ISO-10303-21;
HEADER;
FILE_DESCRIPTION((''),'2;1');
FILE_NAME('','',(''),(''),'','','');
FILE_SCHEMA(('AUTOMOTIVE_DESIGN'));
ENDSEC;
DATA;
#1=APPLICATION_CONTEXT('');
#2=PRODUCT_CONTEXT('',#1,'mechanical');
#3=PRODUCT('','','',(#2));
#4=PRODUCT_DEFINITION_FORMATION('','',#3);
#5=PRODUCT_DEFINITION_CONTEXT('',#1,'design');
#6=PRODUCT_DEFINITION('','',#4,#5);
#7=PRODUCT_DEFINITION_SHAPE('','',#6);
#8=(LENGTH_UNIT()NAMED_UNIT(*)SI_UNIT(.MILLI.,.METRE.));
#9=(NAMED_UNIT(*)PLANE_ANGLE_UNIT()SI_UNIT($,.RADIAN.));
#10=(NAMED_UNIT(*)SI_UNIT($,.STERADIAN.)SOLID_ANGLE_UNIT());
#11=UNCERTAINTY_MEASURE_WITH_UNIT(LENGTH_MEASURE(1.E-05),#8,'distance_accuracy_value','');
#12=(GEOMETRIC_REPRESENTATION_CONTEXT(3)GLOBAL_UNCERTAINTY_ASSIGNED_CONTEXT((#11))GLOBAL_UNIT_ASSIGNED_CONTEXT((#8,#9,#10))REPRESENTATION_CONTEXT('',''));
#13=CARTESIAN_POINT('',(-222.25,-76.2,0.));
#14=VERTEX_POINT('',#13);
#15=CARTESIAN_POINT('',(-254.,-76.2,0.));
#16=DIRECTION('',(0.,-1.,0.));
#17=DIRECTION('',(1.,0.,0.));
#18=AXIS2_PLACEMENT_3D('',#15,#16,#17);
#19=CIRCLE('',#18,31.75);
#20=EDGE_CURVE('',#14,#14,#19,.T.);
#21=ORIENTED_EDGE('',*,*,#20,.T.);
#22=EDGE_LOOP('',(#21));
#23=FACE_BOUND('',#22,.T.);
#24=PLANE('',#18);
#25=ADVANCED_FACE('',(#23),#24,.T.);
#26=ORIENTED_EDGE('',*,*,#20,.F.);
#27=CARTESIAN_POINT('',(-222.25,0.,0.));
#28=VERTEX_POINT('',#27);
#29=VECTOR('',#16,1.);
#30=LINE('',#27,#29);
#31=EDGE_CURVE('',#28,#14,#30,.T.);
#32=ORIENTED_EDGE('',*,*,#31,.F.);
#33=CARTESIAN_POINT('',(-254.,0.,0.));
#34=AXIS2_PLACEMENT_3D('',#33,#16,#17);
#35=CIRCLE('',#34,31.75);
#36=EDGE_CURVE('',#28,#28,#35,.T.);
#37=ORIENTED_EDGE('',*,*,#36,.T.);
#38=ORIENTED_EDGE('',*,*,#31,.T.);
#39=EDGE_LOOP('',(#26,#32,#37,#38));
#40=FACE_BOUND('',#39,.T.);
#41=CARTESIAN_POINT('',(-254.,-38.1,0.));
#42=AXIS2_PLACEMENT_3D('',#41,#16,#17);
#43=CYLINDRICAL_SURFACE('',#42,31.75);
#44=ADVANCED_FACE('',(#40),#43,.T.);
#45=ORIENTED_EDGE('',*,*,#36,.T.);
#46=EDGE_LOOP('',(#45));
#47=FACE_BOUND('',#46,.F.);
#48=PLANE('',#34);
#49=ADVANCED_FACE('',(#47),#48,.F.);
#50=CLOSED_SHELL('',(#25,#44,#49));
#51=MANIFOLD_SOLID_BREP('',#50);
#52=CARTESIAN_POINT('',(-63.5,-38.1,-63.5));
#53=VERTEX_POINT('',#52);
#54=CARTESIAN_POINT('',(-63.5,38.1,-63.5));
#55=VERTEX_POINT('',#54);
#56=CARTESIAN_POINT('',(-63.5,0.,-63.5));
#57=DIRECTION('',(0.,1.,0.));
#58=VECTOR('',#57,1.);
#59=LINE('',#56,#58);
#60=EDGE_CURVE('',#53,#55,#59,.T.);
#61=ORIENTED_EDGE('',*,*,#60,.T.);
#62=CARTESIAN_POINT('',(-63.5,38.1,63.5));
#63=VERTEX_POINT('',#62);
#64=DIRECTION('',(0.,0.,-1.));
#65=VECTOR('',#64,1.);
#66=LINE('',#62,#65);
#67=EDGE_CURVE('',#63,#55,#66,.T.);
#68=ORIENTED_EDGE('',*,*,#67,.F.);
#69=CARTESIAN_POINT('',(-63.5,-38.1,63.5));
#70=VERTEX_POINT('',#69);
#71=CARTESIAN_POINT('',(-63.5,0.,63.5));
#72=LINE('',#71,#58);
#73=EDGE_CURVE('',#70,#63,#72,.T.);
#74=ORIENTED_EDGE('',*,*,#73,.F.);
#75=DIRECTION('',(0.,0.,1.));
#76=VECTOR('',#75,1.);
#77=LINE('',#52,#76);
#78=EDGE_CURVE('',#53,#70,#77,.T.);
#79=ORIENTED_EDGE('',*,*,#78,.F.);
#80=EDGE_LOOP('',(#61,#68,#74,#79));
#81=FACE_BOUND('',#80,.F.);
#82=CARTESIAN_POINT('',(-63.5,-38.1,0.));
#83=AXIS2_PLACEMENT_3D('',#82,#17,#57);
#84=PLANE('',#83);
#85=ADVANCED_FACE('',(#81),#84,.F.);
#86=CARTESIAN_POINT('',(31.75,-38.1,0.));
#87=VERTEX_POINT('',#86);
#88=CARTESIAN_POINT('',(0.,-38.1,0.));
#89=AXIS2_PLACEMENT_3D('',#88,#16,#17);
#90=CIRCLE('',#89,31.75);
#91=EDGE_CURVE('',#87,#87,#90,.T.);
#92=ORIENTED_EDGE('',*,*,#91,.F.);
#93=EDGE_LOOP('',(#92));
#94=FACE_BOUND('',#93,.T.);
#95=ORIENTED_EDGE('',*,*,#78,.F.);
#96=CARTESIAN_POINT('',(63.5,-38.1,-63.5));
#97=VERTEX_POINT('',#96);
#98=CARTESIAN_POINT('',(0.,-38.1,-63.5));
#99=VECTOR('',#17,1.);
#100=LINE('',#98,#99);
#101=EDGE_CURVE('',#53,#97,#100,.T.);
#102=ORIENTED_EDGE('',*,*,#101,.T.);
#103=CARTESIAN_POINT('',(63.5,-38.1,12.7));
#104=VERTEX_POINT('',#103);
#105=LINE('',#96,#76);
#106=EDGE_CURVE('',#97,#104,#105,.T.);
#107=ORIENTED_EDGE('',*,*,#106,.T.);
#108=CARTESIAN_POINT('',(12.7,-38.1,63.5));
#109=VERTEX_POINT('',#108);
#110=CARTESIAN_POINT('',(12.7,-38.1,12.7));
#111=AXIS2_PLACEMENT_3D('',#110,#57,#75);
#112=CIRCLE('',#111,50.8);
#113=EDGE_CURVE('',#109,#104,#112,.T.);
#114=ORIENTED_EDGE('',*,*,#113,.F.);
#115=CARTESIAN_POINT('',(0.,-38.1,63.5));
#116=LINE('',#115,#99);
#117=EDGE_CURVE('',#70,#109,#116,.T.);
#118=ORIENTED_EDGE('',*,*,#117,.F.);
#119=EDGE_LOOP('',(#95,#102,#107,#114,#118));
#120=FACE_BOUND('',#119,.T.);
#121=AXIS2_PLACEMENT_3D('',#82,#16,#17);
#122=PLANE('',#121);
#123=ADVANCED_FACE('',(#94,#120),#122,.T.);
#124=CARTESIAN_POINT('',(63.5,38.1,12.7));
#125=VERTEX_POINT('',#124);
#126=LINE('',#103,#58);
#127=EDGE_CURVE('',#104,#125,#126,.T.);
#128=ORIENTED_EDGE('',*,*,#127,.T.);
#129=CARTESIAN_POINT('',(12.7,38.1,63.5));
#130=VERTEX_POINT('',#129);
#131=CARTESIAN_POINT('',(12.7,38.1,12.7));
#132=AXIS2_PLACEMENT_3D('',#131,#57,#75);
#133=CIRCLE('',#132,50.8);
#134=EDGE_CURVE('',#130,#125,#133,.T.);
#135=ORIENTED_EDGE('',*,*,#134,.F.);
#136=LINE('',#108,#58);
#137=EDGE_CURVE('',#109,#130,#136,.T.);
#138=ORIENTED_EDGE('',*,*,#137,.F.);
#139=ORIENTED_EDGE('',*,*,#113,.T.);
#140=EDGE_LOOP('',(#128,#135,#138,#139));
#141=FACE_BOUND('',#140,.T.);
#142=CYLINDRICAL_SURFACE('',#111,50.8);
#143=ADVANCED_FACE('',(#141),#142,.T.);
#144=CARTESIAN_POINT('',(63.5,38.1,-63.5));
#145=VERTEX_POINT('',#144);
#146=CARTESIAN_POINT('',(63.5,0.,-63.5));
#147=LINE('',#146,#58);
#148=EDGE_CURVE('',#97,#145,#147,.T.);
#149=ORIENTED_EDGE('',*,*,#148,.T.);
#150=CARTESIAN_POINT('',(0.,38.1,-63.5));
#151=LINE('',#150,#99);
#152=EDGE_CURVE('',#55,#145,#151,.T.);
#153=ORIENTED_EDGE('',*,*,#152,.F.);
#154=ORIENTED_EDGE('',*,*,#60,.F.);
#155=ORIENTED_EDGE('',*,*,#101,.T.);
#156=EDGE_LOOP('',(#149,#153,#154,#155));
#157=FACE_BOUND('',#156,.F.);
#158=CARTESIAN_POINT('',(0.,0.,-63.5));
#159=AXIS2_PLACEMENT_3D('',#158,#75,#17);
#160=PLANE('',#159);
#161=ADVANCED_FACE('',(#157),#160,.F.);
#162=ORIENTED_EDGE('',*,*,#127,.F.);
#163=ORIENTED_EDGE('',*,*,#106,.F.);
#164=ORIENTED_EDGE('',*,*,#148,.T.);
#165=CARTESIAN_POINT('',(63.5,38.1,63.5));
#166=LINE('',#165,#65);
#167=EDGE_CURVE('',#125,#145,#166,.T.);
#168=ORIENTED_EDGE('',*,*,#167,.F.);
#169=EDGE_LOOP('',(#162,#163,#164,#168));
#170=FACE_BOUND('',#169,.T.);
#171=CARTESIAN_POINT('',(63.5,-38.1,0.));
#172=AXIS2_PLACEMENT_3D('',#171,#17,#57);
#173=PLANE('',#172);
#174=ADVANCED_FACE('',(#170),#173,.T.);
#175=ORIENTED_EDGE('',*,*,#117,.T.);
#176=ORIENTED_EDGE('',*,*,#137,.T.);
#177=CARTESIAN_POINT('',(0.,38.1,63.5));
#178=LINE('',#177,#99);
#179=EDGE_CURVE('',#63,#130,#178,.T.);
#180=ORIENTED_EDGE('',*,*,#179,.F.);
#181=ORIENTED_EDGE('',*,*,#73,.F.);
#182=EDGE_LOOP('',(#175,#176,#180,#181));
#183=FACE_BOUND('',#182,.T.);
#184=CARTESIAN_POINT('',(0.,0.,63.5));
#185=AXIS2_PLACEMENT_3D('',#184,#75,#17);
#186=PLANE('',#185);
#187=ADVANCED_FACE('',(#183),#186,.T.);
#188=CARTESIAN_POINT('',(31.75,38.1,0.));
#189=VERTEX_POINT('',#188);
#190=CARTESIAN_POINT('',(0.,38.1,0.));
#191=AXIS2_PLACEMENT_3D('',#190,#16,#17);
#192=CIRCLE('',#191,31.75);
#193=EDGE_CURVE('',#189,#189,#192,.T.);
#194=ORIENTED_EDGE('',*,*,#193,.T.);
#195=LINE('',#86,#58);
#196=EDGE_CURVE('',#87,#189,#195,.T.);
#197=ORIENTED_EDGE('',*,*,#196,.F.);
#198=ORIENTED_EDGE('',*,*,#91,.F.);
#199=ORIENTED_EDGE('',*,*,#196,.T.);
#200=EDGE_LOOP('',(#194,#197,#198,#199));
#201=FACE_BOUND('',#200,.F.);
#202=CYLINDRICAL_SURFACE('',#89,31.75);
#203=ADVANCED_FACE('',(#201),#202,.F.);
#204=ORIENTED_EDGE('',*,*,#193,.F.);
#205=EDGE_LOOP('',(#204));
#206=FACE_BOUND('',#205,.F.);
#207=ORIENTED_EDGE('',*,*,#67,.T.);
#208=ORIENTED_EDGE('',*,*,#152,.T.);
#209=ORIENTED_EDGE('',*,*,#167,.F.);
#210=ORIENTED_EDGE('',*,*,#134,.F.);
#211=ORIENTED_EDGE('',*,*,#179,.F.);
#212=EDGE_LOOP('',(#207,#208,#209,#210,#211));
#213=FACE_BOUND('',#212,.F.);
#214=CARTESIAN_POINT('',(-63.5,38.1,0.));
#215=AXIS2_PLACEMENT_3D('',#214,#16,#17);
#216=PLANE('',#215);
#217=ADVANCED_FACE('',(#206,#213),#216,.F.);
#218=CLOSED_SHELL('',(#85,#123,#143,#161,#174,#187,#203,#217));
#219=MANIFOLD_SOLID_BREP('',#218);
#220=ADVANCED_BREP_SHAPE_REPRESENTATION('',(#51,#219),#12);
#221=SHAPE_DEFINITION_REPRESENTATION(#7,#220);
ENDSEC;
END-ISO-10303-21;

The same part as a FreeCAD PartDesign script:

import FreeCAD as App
import Part
import Sketcher
Q = App.Units.Quantity


def edges_at(feature, points):
    """Names of the edges that pass closest to the given points."""
    edges = feature.Shape.Edges
    near = lambda p: min(range(len(edges)), key=lambda i: edges[i].distToShape(Part.Vertex(*p))[0])
    return sorted({f"Edge{near(p) + 1}" for p in points})

doc = App.newDocument("Part")
params = doc.addObject("Spreadsheet::Sheet", "Params")
for row, (alias, value) in enumerate([
    ("sketch1_width", "5 in"),
    ("sketch1_height", "3 in"),
    ("pad1_length", "5 in"),
    ("fillet_radius", "2 in"),
    ("sketch2_diameter", "2.5 in"),
    ("sketch3_diameter", "2.5 in"),
    ("pad2_length", "3 in"),
], start=1):
    params.set(f"A{row}", alias)
    params.set(f"B{row}", "=" + value)
    params.setAlias(f"B{row}", alias)

body = doc.addObject("PartDesign::Body", "Body")

# Sketch on XY plane
sketch1 = body.newObject("Sketcher::SketchObject", "Sketch")
sketch1.AttachmentSupport = (doc.getObject("XY_Plane"), [""])
sketch1.MapMode = "FlatFace"
sketch1.addGeometry([
    Part.LineSegment(App.Vector(-64, 38, 0), App.Vector(-64, -38, 0)),
    Part.LineSegment(App.Vector(-64, -38, 0), App.Vector(64, -38, 0)),
    Part.LineSegment(App.Vector(64, -38, 0), App.Vector(64, 38, 0)),
    Part.LineSegment(App.Vector(64, 38, 0), App.Vector(-64, 38, 0)),
], False)
sketch1.addConstraint([
    Sketcher.Constraint("Coincident", 0, 2, 1, 1),
    Sketcher.Constraint("Coincident", 1, 2, 2, 1),
    Sketcher.Constraint("Coincident", 2, 2, 3, 1),
    Sketcher.Constraint("Coincident", 3, 2, 0, 1),
    Sketcher.Constraint("Vertical", 0),
    Sketcher.Constraint("Horizontal", 1),
    Sketcher.Constraint("Vertical", 2),
    Sketcher.Constraint("Horizontal", 3),
    Sketcher.Constraint("Symmetric", 0, 2, 2, 2, -1, 1),
    Sketcher.Constraint("DistanceX", 1, 1, 1, 2, Q("5 in")),
    Sketcher.Constraint("DistanceY", 0, 2, 0, 1, Q("3 in")),
])
sketch1.setExpression("Constraints[9]", "Params.sketch1_width")
sketch1.setExpression("Constraints[10]", "Params.sketch1_height")
pad1 = body.newObject("PartDesign::Pad", "Pad")
pad1.Profile = sketch1
pad1.setExpression("Length", "Params.pad1_length")
pad1.Midplane = True
doc.recompute()

fillet = body.newObject("PartDesign::Fillet", "Fillet")
fillet.Base = (pad1, edges_at(pad1, [(63.5, 0, 63.5)]))
fillet.setExpression("Radius", "Params.fillet_radius")

# Sketch on XZ plane
sketch2 = body.newObject("Sketcher::SketchObject", "Sketch001")
sketch2.AttachmentSupport = (doc.getObject("XZ_Plane"), [""])
sketch2.MapMode = "FlatFace"
sketch2.AttachmentOffset = App.Placement(App.Vector(0, 0, 1.5 * 25.4), App.Rotation())
sketch2.addGeometry(Part.Circle(App.Vector(0, 0, 0), App.Vector(0, 0, 1), 32), False)
sketch2.addConstraint([
    Sketcher.Constraint("Coincident", 0, 3, -1, 1),
    Sketcher.Constraint("Diameter", 0, Q("2.5 in")),
])
sketch2.setExpression("Constraints[1]", "Params.sketch2_diameter")
pocket1 = body.newObject("PartDesign::Pocket", "Pocket")
pocket1.Profile = sketch2
pocket1.Type = "ThroughAll"
body2 = doc.addObject("PartDesign::Body", "Body001")

# Sketch on XZ plane
sketch3 = body2.newObject("Sketcher::SketchObject", "Sketch002")
sketch3.AttachmentSupport = (doc.getObject("XZ_Plane001"), [""])
sketch3.MapMode = "FlatFace"
sketch3.AttachmentOffset = App.Placement(App.Vector(0, 0, 1.5 * 25.4), App.Rotation())
sketch3.addGeometry(Part.Circle(App.Vector(-254, 0, 0), App.Vector(0, 0, 1), 32), False)
sketch3.addConstraint([
    Sketcher.Constraint("PointOnObject", 0, 3, -1),
    Sketcher.Constraint("Diameter", 0, Q("2.5 in")),
    Sketcher.Constraint("DistanceX", 0, 3, -1, 1, Q("10 in")),
])
sketch3.setExpression("Constraints[1]", "Params.sketch3_diameter")
pad2 = body2.newObject("PartDesign::Pad", "Pad001")
pad2.Profile = sketch3
pad2.setExpression("Length", "Params.pad2_length")
pad2.Midplane = True

doc.recompute()
